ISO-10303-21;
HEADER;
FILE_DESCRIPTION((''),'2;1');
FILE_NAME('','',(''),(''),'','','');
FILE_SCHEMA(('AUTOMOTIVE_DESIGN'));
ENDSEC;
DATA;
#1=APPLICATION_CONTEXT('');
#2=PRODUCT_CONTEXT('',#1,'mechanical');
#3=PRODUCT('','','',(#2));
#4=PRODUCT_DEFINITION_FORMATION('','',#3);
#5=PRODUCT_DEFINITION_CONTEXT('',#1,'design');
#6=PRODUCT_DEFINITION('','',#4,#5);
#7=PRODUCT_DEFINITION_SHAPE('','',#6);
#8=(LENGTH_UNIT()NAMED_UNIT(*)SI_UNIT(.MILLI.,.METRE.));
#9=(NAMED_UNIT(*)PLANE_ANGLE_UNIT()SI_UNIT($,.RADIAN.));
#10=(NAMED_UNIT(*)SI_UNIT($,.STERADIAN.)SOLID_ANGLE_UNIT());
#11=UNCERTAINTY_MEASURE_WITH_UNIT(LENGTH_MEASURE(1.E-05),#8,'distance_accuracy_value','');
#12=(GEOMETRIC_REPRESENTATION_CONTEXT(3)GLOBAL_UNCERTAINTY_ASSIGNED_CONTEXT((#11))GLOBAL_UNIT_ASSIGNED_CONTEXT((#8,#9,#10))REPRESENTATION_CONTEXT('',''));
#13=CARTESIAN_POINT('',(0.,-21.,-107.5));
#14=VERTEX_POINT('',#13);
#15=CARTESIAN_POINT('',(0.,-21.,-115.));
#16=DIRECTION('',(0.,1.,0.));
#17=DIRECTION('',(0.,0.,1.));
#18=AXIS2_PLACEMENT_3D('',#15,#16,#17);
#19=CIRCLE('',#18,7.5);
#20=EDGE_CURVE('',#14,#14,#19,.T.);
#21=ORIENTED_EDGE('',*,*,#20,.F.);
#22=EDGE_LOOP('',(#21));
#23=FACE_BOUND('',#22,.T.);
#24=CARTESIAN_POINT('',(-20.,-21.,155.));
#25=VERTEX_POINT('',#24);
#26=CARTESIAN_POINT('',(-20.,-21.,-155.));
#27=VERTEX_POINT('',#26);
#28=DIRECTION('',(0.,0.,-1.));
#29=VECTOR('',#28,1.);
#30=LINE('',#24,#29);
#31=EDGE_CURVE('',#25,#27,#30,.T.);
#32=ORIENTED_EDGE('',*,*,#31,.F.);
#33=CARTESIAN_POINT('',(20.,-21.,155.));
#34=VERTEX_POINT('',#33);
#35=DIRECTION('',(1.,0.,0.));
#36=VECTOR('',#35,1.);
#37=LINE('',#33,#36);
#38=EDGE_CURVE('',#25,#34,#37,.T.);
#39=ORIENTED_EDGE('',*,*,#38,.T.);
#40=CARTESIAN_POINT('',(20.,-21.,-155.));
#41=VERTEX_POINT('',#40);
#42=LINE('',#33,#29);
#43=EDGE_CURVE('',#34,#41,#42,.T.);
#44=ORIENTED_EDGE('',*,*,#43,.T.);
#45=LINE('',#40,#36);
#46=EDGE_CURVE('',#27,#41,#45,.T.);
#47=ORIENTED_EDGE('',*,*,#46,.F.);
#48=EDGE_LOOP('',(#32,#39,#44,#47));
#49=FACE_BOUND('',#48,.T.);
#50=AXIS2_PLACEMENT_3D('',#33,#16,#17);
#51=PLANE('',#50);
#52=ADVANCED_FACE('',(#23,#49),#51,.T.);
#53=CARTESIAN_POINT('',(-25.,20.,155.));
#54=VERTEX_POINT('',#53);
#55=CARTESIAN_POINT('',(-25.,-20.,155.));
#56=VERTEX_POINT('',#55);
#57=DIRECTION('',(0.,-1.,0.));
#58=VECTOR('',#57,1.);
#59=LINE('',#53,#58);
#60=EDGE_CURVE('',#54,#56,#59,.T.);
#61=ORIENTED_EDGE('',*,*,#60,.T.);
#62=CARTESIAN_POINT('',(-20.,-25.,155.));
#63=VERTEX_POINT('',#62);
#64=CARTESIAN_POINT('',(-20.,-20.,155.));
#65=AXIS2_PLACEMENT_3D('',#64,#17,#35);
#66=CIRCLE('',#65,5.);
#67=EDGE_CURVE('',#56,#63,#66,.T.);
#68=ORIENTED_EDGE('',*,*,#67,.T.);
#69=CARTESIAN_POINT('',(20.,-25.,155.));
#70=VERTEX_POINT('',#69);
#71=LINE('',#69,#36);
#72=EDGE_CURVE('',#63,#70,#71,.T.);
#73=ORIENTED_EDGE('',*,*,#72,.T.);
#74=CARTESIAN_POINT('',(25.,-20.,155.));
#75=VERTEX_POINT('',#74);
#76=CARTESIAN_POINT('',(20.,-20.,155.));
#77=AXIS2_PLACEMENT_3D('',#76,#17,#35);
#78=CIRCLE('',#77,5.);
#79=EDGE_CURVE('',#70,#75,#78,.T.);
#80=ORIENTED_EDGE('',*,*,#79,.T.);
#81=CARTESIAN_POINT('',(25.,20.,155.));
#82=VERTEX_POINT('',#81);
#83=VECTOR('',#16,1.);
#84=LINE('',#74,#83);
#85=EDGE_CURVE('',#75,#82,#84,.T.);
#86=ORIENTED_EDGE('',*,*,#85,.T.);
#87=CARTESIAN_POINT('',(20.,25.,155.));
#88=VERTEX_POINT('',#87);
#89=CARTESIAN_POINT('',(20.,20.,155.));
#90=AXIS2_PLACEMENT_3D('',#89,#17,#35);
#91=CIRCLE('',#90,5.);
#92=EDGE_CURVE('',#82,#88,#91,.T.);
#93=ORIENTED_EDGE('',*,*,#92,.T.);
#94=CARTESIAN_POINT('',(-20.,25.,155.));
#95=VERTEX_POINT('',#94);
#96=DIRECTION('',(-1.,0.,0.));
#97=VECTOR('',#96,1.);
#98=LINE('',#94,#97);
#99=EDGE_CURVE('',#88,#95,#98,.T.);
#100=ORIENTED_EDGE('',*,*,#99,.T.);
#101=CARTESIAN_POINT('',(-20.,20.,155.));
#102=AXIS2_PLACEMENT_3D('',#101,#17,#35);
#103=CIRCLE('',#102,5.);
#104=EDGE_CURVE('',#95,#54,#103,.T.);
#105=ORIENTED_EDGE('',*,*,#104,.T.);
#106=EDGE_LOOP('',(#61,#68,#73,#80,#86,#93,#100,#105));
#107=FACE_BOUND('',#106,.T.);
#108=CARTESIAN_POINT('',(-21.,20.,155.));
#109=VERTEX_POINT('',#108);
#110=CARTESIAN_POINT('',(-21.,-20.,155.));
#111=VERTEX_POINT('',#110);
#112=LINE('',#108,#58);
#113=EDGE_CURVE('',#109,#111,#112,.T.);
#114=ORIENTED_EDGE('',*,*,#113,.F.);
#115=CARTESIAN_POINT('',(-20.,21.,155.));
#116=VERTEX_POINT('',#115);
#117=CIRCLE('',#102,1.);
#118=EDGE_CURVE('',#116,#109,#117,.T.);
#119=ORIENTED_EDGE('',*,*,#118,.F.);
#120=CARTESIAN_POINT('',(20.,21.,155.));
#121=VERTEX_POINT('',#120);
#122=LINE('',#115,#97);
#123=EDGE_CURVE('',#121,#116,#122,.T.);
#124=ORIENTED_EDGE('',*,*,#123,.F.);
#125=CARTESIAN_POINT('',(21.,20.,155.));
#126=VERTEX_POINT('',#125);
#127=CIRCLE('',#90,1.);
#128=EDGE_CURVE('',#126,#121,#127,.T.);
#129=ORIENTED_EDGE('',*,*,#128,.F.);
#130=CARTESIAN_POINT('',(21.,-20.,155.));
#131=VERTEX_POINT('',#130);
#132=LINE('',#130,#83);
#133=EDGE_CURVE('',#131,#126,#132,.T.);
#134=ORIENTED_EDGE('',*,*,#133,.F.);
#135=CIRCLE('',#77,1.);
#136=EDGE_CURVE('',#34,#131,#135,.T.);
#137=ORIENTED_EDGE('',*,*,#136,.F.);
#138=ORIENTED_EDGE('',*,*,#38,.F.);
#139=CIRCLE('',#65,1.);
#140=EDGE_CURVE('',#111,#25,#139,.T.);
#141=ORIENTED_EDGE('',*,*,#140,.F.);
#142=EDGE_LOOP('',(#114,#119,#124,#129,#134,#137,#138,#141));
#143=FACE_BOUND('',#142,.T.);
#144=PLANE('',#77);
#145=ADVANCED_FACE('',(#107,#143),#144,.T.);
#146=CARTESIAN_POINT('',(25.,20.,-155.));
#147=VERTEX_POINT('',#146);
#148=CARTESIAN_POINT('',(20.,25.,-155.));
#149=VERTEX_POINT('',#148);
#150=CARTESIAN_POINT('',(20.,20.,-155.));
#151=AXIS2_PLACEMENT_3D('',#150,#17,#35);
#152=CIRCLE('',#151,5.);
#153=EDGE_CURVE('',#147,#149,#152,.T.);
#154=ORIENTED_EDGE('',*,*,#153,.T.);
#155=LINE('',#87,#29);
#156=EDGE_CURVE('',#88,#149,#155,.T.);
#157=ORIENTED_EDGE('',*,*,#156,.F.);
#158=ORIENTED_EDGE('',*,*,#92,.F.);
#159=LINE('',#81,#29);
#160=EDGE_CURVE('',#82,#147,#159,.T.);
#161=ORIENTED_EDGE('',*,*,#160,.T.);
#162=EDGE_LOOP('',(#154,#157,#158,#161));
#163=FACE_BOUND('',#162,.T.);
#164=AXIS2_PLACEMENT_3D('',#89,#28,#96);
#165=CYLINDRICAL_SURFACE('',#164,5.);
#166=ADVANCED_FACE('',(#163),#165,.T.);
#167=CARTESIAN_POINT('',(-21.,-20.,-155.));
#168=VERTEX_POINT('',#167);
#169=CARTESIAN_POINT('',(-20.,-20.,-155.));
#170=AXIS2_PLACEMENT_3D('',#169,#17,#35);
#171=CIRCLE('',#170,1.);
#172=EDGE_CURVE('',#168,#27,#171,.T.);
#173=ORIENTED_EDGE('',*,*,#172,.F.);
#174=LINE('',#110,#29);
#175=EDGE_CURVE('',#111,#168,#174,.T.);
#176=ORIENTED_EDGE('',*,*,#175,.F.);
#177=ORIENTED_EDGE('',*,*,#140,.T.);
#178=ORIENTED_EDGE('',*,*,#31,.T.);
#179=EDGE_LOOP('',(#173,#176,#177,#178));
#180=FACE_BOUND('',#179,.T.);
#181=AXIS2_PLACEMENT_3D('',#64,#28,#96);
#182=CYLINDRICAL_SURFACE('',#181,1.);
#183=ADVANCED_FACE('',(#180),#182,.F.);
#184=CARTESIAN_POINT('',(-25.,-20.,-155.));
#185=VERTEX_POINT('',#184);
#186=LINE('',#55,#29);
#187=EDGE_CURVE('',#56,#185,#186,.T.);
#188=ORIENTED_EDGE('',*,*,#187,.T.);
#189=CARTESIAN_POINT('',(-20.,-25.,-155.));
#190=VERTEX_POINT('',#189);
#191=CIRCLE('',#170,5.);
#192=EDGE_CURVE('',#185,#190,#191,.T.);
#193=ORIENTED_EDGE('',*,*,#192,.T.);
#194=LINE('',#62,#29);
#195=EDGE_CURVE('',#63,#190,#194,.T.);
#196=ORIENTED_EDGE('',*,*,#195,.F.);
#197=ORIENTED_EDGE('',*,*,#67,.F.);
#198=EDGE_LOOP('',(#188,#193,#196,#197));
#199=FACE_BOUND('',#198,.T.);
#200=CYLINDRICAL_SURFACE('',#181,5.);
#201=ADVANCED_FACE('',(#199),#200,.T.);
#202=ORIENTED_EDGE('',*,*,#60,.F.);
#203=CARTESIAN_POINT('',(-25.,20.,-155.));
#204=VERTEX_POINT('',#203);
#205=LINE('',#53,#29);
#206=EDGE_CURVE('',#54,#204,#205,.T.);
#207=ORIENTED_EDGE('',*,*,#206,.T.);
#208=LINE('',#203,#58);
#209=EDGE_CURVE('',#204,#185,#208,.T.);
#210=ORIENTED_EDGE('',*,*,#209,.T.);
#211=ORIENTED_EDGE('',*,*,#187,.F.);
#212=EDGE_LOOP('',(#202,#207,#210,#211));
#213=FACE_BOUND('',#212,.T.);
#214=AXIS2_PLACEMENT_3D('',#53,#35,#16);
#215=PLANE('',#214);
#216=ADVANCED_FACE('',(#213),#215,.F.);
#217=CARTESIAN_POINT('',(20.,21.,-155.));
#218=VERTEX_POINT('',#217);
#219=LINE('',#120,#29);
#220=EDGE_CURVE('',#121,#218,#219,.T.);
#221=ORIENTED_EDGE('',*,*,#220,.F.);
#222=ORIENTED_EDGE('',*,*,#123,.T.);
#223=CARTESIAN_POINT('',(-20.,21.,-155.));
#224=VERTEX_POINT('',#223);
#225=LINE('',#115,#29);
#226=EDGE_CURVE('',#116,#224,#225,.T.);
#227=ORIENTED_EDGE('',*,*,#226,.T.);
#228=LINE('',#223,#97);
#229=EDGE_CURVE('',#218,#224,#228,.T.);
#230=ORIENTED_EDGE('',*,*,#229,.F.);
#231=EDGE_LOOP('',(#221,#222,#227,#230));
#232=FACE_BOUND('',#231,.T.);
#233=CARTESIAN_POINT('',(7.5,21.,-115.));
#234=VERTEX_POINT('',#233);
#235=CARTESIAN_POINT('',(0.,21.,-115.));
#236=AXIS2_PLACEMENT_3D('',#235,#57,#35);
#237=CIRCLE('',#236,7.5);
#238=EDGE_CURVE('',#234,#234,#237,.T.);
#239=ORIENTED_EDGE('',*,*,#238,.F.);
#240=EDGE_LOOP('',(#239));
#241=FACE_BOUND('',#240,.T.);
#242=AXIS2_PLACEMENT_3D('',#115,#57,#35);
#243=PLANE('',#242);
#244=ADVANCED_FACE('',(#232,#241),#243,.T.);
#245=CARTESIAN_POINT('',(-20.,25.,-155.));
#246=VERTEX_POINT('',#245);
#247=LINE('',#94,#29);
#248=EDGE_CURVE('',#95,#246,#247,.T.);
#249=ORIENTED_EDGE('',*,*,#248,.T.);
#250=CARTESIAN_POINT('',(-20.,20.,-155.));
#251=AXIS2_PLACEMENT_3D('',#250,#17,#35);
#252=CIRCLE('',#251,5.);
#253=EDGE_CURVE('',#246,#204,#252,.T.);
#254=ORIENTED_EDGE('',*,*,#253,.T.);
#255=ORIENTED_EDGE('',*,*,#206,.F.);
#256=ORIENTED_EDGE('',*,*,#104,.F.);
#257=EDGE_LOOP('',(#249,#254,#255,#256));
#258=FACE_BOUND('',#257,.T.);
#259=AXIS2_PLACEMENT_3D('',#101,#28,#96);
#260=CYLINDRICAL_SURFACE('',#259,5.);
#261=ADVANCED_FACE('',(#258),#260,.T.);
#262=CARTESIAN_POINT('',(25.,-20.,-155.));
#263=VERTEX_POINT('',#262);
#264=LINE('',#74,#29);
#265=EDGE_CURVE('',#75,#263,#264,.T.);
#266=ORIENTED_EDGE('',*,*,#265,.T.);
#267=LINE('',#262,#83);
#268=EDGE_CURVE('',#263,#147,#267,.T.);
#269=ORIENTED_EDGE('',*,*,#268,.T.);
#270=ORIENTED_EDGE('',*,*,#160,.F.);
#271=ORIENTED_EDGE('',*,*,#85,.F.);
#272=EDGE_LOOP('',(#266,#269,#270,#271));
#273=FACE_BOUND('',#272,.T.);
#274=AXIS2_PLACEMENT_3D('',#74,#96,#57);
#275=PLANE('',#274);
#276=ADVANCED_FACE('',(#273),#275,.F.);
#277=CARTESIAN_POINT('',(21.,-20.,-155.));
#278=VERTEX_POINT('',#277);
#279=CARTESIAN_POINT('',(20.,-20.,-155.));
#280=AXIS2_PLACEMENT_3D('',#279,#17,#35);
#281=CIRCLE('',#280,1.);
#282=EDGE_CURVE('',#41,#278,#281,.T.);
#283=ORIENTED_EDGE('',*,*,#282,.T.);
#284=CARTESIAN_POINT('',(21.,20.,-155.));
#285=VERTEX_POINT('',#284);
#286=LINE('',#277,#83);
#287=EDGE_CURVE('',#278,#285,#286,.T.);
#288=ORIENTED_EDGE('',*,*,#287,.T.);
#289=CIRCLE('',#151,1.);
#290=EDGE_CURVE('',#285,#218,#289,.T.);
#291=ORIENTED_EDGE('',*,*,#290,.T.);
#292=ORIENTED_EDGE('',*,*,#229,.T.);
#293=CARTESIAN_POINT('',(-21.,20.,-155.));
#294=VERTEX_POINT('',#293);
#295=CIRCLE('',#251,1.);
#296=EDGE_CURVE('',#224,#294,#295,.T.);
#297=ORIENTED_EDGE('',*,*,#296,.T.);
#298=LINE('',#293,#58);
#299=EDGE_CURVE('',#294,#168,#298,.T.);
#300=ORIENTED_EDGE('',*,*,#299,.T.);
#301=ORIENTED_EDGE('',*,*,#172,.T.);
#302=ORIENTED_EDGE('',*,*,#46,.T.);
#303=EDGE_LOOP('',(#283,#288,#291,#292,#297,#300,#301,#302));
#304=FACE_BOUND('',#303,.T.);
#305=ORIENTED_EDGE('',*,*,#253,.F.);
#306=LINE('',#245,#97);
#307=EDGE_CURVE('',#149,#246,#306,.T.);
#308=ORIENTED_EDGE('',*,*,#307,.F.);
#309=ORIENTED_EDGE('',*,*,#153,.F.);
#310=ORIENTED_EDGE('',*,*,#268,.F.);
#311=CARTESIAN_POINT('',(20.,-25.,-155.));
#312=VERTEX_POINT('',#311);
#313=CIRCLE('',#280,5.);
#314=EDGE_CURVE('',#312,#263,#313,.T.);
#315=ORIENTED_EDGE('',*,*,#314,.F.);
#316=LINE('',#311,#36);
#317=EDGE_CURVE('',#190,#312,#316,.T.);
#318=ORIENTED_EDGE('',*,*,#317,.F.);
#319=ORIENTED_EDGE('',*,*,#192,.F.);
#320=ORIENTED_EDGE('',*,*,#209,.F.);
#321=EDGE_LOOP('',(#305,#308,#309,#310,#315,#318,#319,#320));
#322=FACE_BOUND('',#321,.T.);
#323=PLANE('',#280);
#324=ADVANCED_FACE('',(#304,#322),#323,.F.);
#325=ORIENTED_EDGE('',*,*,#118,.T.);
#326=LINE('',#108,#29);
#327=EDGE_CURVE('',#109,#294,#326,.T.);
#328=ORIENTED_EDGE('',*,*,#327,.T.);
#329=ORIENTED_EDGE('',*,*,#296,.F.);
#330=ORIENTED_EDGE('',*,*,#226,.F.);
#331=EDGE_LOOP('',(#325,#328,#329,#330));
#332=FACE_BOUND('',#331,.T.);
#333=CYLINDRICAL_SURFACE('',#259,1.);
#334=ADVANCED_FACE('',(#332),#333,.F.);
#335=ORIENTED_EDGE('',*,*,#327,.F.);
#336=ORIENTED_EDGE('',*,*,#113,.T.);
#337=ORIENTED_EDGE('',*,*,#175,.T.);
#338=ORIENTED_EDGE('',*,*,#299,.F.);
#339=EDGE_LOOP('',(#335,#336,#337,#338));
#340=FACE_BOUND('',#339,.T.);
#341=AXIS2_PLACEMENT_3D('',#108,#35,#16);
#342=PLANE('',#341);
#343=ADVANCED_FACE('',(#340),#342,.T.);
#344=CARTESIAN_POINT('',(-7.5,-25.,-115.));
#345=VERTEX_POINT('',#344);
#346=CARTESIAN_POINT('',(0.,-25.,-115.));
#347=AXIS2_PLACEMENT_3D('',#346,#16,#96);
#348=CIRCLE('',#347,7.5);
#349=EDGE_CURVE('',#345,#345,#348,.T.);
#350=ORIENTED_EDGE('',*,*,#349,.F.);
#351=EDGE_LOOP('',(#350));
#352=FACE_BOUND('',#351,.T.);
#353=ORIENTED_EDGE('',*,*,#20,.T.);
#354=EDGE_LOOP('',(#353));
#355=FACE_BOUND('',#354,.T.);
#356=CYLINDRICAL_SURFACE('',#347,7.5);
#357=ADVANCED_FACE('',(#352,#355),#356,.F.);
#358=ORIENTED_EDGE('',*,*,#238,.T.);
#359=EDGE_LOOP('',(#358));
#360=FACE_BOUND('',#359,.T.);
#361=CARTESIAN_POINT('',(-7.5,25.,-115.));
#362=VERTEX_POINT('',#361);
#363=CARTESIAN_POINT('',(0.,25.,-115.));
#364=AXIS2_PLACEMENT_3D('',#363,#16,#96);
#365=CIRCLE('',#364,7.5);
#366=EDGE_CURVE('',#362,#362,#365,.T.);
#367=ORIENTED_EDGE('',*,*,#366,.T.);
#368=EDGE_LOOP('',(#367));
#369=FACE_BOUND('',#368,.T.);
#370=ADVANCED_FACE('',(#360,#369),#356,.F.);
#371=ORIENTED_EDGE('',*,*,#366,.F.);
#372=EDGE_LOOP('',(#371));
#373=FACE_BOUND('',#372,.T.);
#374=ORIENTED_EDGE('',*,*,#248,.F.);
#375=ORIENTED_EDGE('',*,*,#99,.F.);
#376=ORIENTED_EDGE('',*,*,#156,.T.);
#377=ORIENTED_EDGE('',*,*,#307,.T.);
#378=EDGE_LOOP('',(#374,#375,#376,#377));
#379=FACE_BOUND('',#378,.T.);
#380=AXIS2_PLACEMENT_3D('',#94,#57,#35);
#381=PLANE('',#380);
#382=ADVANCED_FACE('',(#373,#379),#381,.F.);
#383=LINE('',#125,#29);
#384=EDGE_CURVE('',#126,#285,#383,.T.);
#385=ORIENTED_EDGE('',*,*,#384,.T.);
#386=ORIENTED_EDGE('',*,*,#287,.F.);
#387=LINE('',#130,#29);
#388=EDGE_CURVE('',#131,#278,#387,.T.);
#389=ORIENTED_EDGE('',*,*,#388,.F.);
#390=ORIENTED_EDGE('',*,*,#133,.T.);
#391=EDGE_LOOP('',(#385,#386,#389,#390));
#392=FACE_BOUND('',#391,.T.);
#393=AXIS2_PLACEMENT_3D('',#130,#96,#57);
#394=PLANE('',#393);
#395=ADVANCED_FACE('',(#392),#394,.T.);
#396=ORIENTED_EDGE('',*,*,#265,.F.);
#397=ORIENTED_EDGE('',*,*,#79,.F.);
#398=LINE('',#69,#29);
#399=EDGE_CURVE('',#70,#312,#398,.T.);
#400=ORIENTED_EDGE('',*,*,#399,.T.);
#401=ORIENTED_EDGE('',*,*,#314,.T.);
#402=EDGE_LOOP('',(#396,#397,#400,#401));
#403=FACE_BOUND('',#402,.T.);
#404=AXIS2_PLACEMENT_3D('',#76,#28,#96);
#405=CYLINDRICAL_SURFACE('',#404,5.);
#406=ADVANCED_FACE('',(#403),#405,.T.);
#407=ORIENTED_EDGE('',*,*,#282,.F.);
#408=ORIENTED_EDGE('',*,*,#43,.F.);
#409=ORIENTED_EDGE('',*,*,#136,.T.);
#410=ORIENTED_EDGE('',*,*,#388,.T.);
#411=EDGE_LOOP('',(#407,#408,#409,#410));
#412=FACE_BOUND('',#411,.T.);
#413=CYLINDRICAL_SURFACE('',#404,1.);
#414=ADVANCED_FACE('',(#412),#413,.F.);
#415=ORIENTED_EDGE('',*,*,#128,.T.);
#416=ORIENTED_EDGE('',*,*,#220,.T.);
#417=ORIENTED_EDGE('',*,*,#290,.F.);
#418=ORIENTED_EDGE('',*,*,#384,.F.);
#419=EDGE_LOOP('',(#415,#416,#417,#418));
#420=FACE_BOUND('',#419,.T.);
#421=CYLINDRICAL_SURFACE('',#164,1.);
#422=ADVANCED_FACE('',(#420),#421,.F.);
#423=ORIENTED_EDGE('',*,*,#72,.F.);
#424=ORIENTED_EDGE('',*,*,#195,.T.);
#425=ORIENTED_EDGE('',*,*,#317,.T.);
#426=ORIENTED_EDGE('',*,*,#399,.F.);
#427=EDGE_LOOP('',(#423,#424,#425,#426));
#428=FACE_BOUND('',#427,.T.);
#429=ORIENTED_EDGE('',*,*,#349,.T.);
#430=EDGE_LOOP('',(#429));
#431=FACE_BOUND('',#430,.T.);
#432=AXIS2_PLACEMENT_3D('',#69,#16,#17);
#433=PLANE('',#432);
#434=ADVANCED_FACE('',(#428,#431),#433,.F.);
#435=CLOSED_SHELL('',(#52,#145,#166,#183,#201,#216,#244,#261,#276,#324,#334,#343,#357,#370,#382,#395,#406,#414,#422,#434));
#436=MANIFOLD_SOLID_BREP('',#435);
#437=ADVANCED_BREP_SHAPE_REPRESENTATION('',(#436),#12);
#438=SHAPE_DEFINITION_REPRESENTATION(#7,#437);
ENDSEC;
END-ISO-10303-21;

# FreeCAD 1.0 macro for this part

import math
import FreeCAD as App
import Part
import Sketcher
Q = App.Units.Quantity

doc = App.newDocument("Part")
body = doc.addObject("PartDesign::Body", "Body")

# Sketch on XY plane
sketch1 = body.newObject("Sketcher::SketchObject", "Sketch")
sketch1.AttachmentSupport = (doc.getObject("XY_Plane"), [""])
sketch1.MapMode = "FlatFace"
sketch1.AttachmentOffset = App.Placement(App.Vector(0, 0, -155), App.Rotation())
sketch1.addGeometry([
    Part.LineSegment(App.Vector(-25, 20, 0), App.Vector(-25, -20, 0)),  # 0
    Part.ArcOfCircle(Part.Circle(App.Vector(-20, -20, 0), App.Vector(0, 0, 1), 5), math.radians(180), math.radians(270)),  # 1
    Part.LineSegment(App.Vector(-20, -25, 0), App.Vector(20, -25, 0)),  # 2
    Part.ArcOfCircle(Part.Circle(App.Vector(20, -20, 0), App.Vector(0, 0, 1), 5), math.radians(-90), math.radians(0)),  # 3
    Part.LineSegment(App.Vector(25, -20, 0), App.Vector(25, 20, 0)),  # 4
    Part.ArcOfCircle(Part.Circle(App.Vector(20, 20, 0), App.Vector(0, 0, 1), 5), math.radians(0), math.radians(90)),  # 5
    Part.LineSegment(App.Vector(20, 25, 0), App.Vector(-20, 25, 0)),  # 6
    Part.ArcOfCircle(Part.Circle(App.Vector(-20, 20, 0), App.Vector(0, 0, 1), 5), math.radians(90), math.radians(180)),  # 7
    Part.LineSegment(App.Vector(-21, -20, 0), App.Vector(-21, 20, 0)),  # 8
    Part.ArcOfCircle(Part.Circle(App.Vector(-20, 20, 0), App.Vector(0, 0, 1), 1), math.radians(90), math.radians(180)),  # 9
    Part.LineSegment(App.Vector(-20, 21, 0), App.Vector(20, 21, 0)),  # 10
    Part.ArcOfCircle(Part.Circle(App.Vector(20, 20, 0), App.Vector(0, 0, 1), 1), math.radians(0), math.radians(90)),  # 11
    Part.LineSegment(App.Vector(21, 20, 0), App.Vector(21, -20, 0)),  # 12
    Part.ArcOfCircle(Part.Circle(App.Vector(20, -20, 0), App.Vector(0, 0, 1), 1), math.radians(-90), math.radians(0)),  # 13
    Part.LineSegment(App.Vector(20, -21, 0), App.Vector(-20, -21, 0)),  # 14
    Part.ArcOfCircle(Part.Circle(App.Vector(-20, -20, 0), App.Vector(0, 0, 1), 1), math.radians(-180), math.radians(-90)),  # 15
], False)
sketch1.addConstraint([
    Sketcher.Constraint("Tangent", 0, 2, 1, 1),
    Sketcher.Constraint("Tangent", 1, 2, 2, 1),
    Sketcher.Constraint("Tangent", 2, 2, 3, 1),
    Sketcher.Constraint("Tangent", 3, 2, 4, 1),
    Sketcher.Constraint("Tangent", 4, 2, 5, 1),
    Sketcher.Constraint("Tangent", 5, 2, 6, 1),
    Sketcher.Constraint("Tangent", 6, 2, 7, 1),
    Sketcher.Constraint("Tangent", 7, 2, 0, 1),
    Sketcher.Constraint("Tangent", 8, 2, 9, 2),
    Sketcher.Constraint("Tangent", 9, 1, 10, 1),
    Sketcher.Constraint("Tangent", 10, 2, 11, 2),
    Sketcher.Constraint("Tangent", 11, 1, 12, 1),
    Sketcher.Constraint("Tangent", 12, 2, 13, 2),
    Sketcher.Constraint("Tangent", 13, 1, 14, 1),
    Sketcher.Constraint("Tangent", 14, 2, 15, 2),
    Sketcher.Constraint("Tangent", 15, 1, 8, 1),
    Sketcher.Constraint("Vertical", 0),
    Sketcher.Constraint("Horizontal", 2),
    Sketcher.Constraint("Vertical", 4),
    Sketcher.Constraint("Horizontal", 6),
    Sketcher.Constraint("Vertical", 8),
    Sketcher.Constraint("Horizontal", 10),
    Sketcher.Constraint("Vertical", 12),
    Sketcher.Constraint("Horizontal", 14),
    Sketcher.Constraint("Coincident", 9, 3, 7, 3),
    Sketcher.Constraint("Coincident", 11, 3, 5, 3),
    Sketcher.Constraint("Coincident", 13, 3, 3, 3),
    Sketcher.Constraint("Equal", 1, 3),
    Sketcher.Constraint("Equal", 3, 5),
    Sketcher.Constraint("Equal", 5, 7),
    Sketcher.Constraint("Equal", 13, 15),
    Sketcher.Constraint("Symmetric", 1, 3, 5, 3, -1, 1),
    Sketcher.Constraint("Equal", 14, 0),
    Sketcher.Constraint("Radius", 1, Q("5 mm")),
    Sketcher.Constraint("Radius", 9, Q("1 mm")),
    Sketcher.Constraint("DistanceX", 2, 1, 2, 2, Q("40 mm")),
])
pad1 = body.newObject("PartDesign::Pad", "Pad")
pad1.Profile = sketch1
pad1.Length = 310

# Sketch on XZ plane
sketch2 = body.newObject("Sketcher::SketchObject", "Sketch001")
sketch2.AttachmentSupport = (doc.getObject("XZ_Plane"), [""])
sketch2.MapMode = "FlatFace"
sketch2.AttachmentOffset = App.Placement(App.Vector(0, 0, -25), App.Rotation())
sketch2.addGeometry(Part.Circle(App.Vector(0, -115, 0), App.Vector(0, 0, 1), 8), False)
sketch2.addConstraint([
    Sketcher.Constraint("PointOnObject", 0, 3, -2),
    Sketcher.Constraint("Diameter", 0, Q("15 mm")),
    Sketcher.Constraint("DistanceY", 0, 3, -1, 1, Q("115 mm")),
])
pocket1 = body.newObject("PartDesign::Pocket", "Pocket")
pocket1.Profile = sketch2
pocket1.Type = "ThroughAll"
pocket1.Reversed = True

doc.recompute()
